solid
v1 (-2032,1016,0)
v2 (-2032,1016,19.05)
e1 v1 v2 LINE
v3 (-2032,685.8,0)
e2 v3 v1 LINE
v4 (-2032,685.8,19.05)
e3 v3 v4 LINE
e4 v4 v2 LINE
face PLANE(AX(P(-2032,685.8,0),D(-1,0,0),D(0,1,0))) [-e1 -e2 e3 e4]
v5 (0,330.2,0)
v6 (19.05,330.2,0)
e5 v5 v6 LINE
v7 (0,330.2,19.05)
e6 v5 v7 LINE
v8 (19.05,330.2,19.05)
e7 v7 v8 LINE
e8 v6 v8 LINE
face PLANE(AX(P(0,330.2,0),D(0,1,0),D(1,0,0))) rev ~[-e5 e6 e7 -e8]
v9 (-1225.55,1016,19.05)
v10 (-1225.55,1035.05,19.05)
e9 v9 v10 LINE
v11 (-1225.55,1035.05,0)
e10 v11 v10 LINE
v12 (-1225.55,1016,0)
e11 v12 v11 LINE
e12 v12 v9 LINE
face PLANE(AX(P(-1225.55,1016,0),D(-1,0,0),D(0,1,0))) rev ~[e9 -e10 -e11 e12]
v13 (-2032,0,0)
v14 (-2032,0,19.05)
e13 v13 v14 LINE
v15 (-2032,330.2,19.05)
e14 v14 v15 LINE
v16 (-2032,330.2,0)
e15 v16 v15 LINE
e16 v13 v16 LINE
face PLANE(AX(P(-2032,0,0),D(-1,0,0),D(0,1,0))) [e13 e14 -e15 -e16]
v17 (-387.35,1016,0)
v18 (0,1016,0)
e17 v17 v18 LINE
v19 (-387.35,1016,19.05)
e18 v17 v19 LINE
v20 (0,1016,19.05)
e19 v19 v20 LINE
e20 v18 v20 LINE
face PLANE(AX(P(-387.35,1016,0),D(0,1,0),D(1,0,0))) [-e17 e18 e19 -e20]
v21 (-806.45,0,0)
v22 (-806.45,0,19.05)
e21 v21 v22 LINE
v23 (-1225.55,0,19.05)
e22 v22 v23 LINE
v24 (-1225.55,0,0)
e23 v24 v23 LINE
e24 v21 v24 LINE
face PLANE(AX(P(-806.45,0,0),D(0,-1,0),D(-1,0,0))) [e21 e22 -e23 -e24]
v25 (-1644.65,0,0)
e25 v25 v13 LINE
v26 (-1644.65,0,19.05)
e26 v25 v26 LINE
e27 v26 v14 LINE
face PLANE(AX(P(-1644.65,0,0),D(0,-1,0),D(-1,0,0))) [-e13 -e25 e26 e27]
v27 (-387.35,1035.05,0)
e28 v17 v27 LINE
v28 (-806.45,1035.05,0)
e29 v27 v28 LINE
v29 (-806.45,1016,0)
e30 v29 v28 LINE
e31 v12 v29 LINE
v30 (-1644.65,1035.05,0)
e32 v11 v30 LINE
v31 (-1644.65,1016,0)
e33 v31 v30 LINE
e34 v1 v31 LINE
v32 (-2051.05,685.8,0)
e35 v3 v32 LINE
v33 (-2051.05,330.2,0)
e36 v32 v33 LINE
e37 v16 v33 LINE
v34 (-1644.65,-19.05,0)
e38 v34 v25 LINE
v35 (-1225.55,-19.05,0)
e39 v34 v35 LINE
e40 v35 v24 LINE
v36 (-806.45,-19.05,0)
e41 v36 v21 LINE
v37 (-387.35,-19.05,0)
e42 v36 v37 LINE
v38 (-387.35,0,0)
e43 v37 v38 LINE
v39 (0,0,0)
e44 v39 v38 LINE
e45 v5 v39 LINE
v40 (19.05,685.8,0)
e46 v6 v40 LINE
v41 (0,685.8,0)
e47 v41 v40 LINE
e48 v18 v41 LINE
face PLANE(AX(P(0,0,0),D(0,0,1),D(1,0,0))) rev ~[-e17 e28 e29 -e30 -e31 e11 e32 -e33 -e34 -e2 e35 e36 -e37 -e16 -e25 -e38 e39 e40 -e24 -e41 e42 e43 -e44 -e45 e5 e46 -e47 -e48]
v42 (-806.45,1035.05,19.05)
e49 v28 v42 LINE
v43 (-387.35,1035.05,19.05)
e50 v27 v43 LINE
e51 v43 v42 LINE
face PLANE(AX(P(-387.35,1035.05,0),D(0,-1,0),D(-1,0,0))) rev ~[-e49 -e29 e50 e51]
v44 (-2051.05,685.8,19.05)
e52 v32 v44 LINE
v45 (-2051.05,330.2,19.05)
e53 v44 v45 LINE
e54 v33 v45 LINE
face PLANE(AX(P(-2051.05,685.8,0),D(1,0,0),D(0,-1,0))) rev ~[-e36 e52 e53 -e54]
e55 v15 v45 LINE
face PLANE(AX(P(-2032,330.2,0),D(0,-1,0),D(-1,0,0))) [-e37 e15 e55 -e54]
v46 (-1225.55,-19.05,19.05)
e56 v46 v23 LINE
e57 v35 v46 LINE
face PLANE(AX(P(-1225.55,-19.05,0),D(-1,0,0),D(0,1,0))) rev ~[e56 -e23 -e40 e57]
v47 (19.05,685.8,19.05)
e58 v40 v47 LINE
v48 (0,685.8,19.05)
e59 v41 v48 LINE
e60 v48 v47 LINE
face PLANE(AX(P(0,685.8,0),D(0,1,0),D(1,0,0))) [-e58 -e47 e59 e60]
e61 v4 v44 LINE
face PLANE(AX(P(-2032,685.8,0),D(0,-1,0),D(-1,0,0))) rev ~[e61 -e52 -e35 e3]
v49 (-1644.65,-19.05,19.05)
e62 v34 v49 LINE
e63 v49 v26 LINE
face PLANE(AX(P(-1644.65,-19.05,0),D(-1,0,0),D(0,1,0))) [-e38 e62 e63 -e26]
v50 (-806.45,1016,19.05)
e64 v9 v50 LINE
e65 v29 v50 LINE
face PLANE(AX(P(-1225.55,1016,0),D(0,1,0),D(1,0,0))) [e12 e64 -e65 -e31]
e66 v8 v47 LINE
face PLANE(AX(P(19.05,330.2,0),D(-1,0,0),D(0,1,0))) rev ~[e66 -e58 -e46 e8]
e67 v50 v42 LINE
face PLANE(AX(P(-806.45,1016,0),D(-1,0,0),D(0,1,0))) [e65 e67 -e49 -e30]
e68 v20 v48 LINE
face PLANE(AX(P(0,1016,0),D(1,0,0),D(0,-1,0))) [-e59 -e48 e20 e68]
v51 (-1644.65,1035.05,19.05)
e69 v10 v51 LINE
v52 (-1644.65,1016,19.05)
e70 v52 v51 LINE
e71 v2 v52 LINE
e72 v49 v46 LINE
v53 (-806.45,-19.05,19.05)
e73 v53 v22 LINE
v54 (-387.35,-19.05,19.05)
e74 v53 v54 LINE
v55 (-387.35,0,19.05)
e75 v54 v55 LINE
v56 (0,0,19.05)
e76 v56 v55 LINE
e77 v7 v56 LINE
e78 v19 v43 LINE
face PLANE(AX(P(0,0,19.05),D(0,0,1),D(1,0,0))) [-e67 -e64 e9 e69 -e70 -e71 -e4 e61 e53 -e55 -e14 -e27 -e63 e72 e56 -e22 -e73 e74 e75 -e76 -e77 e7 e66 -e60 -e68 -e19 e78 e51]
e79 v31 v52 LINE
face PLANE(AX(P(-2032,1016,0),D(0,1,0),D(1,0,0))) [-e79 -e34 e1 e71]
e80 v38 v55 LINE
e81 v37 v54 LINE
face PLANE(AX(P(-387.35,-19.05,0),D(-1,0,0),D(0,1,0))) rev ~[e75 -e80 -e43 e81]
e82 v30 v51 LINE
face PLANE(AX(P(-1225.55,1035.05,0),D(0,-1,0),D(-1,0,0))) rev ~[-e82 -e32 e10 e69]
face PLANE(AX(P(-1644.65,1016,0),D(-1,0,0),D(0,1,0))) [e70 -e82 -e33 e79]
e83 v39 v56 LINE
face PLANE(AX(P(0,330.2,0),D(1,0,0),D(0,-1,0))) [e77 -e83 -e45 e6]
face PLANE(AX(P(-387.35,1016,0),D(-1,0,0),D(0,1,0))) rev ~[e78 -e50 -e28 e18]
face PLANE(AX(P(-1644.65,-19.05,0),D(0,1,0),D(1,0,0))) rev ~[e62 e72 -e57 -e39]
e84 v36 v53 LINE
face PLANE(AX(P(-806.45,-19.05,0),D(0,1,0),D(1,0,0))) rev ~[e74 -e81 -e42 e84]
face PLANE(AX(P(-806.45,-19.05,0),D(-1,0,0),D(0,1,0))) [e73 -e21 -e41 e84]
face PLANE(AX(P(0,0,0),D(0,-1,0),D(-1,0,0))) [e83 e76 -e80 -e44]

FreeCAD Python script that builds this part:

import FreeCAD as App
import Part
import Sketcher

V = App.Vector
Q = App.Units.Quantity

doc = App.newDocument("Part")
params = doc.addObject("Spreadsheet::Sheet", "Params")
for row, (alias, value) in enumerate([
    ("sketch1_height", "14 in"),
    ("sketch1_width", "16.5 in"),
    ("pad1_length", "0.75 in"),
], start=1):
    params.set(f"A{row}", alias)
    params.set(f"B{row}", "=" + value)
    params.setAlias(f"B{row}", alias)

body = doc.addObject("PartDesign::Body", "Body")

# Sketch on XY plane
sketch1 = doc.addObject("Sketcher::SketchObject", "Sketch")
body.addObject(sketch1)
sketch1.AttachmentSupport = (doc.XY_Plane, [""])
sketch1.MapMode = "FlatFace"
sketch1.addGeometry([
    Part.LineSegment(V(-387, 0, 0), V(0, 0, 0)),  # 0
    Part.LineSegment(V(0, 0, 0), V(0, 330, 0)),  # 1
    Part.LineSegment(V(0, 330, 0), V(19, 330, 0)),  # 2
    Part.LineSegment(V(19, 330, 0), V(19, 686, 0)),  # 3
    Part.LineSegment(V(19, 686, 0), V(0, 686, 0)),  # 4
    Part.LineSegment(V(0, 686, 0), V(0, 1016, 0)),  # 5
    Part.LineSegment(V(0, 1016, 0), V(-387, 1016, 0)),  # 6
    Part.LineSegment(V(-387, 1016, 0), V(-387, 1035, 0)),  # 7
    Part.LineSegment(V(-387, 1035, 0), V(-806, 1035, 0)),  # 8
    Part.LineSegment(V(-806, 1035, 0), V(-806, 1016, 0)),  # 9
    Part.LineSegment(V(-806, 1016, 0), V(-1226, 1016, 0)),  # 10
    Part.LineSegment(V(-1226, 1016, 0), V(-1226, 1035, 0)),  # 11
    Part.LineSegment(V(-1226, 1035, 0), V(-1645, 1035, 0)),  # 12
    Part.LineSegment(V(-1645, 1035, 0), V(-1645, 1016, 0)),  # 13
    Part.LineSegment(V(-1645, 1016, 0), V(-2032, 1016, 0)),  # 14
    Part.LineSegment(V(-2032, 1016, 0), V(-2032, 686, 0)),  # 15
    Part.LineSegment(V(-2032, 686, 0), V(-2051, 686, 0)),  # 16
    Part.LineSegment(V(-2051, 686, 0), V(-2051, 330, 0)),  # 17
    Part.LineSegment(V(-2051, 330, 0), V(-2032, 330, 0)),  # 18
    Part.LineSegment(V(-2032, 330, 0), V(-2032, 0, 0)),  # 19
    Part.LineSegment(V(-2032, 0, 0), V(-1645, 0, 0)),  # 20
    Part.LineSegment(V(-1645, 0, 0), V(-1645, -19, 0)),  # 21
    Part.LineSegment(V(-1645, -19, 0), V(-1226, -19, 0)),  # 22
    Part.LineSegment(V(-1226, -19, 0), V(-1226, 0, 0)),  # 23
    Part.LineSegment(V(-1226, 0, 0), V(-806, 0, 0)),  # 24
    Part.LineSegment(V(-806, 0, 0), V(-806, -19, 0)),  # 25
    Part.LineSegment(V(-806, -19, 0), V(-387, -19, 0)),  # 26
    Part.LineSegment(V(-387, -19, 0), V(-387, 0, 0)),  # 27
], False)
sketch1.addConstraint([
    Sketcher.Constraint("Coincident", 0, 2, 1, 1),
    Sketcher.Constraint("Coincident", 1, 2, 2, 1),
    Sketcher.Constraint("Coincident", 2, 2, 3, 1),
    Sketcher.Constraint("Coincident", 3, 2, 4, 1),
    Sketcher.Constraint("Coincident", 4, 2, 5, 1),
    Sketcher.Constraint("Coincident", 5, 2, 6, 1),
    Sketcher.Constraint("Coincident", 6, 2, 7, 1),
    Sketcher.Constraint("Coincident", 7, 2, 8, 1),
    Sketcher.Constraint("Coincident", 8, 2, 9, 1),
    Sketcher.Constraint("Coincident", 9, 2, 10, 1),
    Sketcher.Constraint("Coincident", 10, 2, 11, 1),
    Sketcher.Constraint("Coincident", 11, 2, 12, 1),
    Sketcher.Constraint("Coincident", 12, 2, 13, 1),
    Sketcher.Constraint("Coincident", 13, 2, 14, 1),
    Sketcher.Constraint("Coincident", 14, 2, 15, 1),
    Sketcher.Constraint("Coincident", 15, 2, 16, 1),
    Sketcher.Constraint("Coincident", 16, 2, 17, 1),
    Sketcher.Constraint("Coincident", 17, 2, 18, 1),
    Sketcher.Constraint("Coincident", 18, 2, 19, 1),
    Sketcher.Constraint("Coincident", 19, 2, 20, 1),
    Sketcher.Constraint("Coincident", 20, 2, 21, 1),
    Sketcher.Constraint("Coincident", 21, 2, 22, 1),
    Sketcher.Constraint("Coincident", 22, 2, 23, 1),
    Sketcher.Constraint("Coincident", 23, 2, 24, 1),
    Sketcher.Constraint("Coincident", 24, 2, 25, 1),
    Sketcher.Constraint("Coincident", 25, 2, 26, 1),
    Sketcher.Constraint("Coincident", 26, 2, 27, 1),
    Sketcher.Constraint("Coincident", 27, 2, 0, 1),
    Sketcher.Constraint("Horizontal", 0),
    Sketcher.Constraint("Vertical", 1),
    Sketcher.Constraint("Horizontal", 2),
    Sketcher.Constraint("Vertical", 3),
    Sketcher.Constraint("Horizontal", 4),
    Sketcher.Constraint("Vertical", 5),
    Sketcher.Constraint("Horizontal", 6),
    Sketcher.Constraint("Vertical", 7),
    Sketcher.Constraint("Horizontal", 8),
    Sketcher.Constraint("Vertical", 9),
    Sketcher.Constraint("Horizontal", 10),
    Sketcher.Constraint("Vertical", 11),
    Sketcher.Constraint("Horizontal", 12),
    Sketcher.Constraint("Vertical", 13),
    Sketcher.Constraint("Horizontal", 14),
    Sketcher.Constraint("Vertical", 15),
    Sketcher.Constraint("Horizontal", 16),
    Sketcher.Constraint("Vertical", 17),
    Sketcher.Constraint("Horizontal", 18),
    Sketcher.Constraint("Vertical", 19),
    Sketcher.Constraint("Horizontal", 20),
    Sketcher.Constraint("Vertical", 21),
    Sketcher.Constraint("Horizontal", 22),
    Sketcher.Constraint("Vertical", 23),
    Sketcher.Constraint("Horizontal", 24),
    Sketcher.Constraint("Vertical", 25),
    Sketcher.Constraint("Horizontal", 26),
    Sketcher.Constraint("Vertical", 27),
    Sketcher.Constraint("Coincident", 0, 2, -1, 1),
    Sketcher.Constraint("PointOnObject", 4, 2, -2),
    Sketcher.Constraint("PointOnObject", 19, 2, -1),
    Sketcher.Constraint("PointOnObject", 23, 2, -1),
    Sketcher.Constraint("Horizontal", 6, 2, 9, 2),
    Sketcher.Constraint("Horizontal", 8, 2, 11, 2),
    Sketcher.Constraint("Horizontal", 10, 2, 13, 2),
    Sketcher.Constraint("Horizontal", 4, 2, 15, 2),
    Sketcher.Constraint("Horizontal", 2, 2, 17, 2),
    Sketcher.Constraint("Horizontal", 22, 2, 25, 2),
    Sketcher.Constraint("Vertical", 15, 2, 18, 2),
    Sketcher.Constraint("Vertical", 13, 2, 20, 2),
    Sketcher.Constraint("Vertical", 11, 2, 22, 2),
    Sketcher.Constraint("Vertical", 9, 2, 24, 2),
    Sketcher.Constraint("Vertical", 7, 2, 26, 2),
    Sketcher.Constraint("Equal", 8, 10),
    Sketcher.Constraint("Equal", 10, 12),
    Sketcher.Constraint("Equal", 6, 14),
    Sketcher.Constraint("Equal", 4, 16),
    Sketcher.Constraint("Equal", 1, 5),
    Sketcher.Constraint("Equal", 18, 7),
    Sketcher.Constraint("Equal", 13, 21),
    Sketcher.Constraint("DistanceY", 3, 1, 3, 2, Q("14 in")),
    Sketcher.Constraint("DistanceX", 8, 2, 8, 1, Q("16.5 in")),
    Sketcher.Constraint("DistanceY", -1, 1, 5, 2, Q("40 in")),
    Sketcher.Constraint("DistanceX", 14, 2, -1, 1, Q("80 in")),
    Sketcher.Constraint("DistanceX", 6, 2, 3, 2, Q("16 in")),
])
sketch1.setExpression("Constraints[78]", "Params.sketch1_height")
sketch1.setExpression("Constraints[79]", "Params.sketch1_width")
pad1 = doc.addObject("PartDesign::Pad", "Pad")
body.addObject(pad1)
pad1.Profile = sketch1
pad1.setExpression("Length", "Params.pad1_length")

doc.recompute()
